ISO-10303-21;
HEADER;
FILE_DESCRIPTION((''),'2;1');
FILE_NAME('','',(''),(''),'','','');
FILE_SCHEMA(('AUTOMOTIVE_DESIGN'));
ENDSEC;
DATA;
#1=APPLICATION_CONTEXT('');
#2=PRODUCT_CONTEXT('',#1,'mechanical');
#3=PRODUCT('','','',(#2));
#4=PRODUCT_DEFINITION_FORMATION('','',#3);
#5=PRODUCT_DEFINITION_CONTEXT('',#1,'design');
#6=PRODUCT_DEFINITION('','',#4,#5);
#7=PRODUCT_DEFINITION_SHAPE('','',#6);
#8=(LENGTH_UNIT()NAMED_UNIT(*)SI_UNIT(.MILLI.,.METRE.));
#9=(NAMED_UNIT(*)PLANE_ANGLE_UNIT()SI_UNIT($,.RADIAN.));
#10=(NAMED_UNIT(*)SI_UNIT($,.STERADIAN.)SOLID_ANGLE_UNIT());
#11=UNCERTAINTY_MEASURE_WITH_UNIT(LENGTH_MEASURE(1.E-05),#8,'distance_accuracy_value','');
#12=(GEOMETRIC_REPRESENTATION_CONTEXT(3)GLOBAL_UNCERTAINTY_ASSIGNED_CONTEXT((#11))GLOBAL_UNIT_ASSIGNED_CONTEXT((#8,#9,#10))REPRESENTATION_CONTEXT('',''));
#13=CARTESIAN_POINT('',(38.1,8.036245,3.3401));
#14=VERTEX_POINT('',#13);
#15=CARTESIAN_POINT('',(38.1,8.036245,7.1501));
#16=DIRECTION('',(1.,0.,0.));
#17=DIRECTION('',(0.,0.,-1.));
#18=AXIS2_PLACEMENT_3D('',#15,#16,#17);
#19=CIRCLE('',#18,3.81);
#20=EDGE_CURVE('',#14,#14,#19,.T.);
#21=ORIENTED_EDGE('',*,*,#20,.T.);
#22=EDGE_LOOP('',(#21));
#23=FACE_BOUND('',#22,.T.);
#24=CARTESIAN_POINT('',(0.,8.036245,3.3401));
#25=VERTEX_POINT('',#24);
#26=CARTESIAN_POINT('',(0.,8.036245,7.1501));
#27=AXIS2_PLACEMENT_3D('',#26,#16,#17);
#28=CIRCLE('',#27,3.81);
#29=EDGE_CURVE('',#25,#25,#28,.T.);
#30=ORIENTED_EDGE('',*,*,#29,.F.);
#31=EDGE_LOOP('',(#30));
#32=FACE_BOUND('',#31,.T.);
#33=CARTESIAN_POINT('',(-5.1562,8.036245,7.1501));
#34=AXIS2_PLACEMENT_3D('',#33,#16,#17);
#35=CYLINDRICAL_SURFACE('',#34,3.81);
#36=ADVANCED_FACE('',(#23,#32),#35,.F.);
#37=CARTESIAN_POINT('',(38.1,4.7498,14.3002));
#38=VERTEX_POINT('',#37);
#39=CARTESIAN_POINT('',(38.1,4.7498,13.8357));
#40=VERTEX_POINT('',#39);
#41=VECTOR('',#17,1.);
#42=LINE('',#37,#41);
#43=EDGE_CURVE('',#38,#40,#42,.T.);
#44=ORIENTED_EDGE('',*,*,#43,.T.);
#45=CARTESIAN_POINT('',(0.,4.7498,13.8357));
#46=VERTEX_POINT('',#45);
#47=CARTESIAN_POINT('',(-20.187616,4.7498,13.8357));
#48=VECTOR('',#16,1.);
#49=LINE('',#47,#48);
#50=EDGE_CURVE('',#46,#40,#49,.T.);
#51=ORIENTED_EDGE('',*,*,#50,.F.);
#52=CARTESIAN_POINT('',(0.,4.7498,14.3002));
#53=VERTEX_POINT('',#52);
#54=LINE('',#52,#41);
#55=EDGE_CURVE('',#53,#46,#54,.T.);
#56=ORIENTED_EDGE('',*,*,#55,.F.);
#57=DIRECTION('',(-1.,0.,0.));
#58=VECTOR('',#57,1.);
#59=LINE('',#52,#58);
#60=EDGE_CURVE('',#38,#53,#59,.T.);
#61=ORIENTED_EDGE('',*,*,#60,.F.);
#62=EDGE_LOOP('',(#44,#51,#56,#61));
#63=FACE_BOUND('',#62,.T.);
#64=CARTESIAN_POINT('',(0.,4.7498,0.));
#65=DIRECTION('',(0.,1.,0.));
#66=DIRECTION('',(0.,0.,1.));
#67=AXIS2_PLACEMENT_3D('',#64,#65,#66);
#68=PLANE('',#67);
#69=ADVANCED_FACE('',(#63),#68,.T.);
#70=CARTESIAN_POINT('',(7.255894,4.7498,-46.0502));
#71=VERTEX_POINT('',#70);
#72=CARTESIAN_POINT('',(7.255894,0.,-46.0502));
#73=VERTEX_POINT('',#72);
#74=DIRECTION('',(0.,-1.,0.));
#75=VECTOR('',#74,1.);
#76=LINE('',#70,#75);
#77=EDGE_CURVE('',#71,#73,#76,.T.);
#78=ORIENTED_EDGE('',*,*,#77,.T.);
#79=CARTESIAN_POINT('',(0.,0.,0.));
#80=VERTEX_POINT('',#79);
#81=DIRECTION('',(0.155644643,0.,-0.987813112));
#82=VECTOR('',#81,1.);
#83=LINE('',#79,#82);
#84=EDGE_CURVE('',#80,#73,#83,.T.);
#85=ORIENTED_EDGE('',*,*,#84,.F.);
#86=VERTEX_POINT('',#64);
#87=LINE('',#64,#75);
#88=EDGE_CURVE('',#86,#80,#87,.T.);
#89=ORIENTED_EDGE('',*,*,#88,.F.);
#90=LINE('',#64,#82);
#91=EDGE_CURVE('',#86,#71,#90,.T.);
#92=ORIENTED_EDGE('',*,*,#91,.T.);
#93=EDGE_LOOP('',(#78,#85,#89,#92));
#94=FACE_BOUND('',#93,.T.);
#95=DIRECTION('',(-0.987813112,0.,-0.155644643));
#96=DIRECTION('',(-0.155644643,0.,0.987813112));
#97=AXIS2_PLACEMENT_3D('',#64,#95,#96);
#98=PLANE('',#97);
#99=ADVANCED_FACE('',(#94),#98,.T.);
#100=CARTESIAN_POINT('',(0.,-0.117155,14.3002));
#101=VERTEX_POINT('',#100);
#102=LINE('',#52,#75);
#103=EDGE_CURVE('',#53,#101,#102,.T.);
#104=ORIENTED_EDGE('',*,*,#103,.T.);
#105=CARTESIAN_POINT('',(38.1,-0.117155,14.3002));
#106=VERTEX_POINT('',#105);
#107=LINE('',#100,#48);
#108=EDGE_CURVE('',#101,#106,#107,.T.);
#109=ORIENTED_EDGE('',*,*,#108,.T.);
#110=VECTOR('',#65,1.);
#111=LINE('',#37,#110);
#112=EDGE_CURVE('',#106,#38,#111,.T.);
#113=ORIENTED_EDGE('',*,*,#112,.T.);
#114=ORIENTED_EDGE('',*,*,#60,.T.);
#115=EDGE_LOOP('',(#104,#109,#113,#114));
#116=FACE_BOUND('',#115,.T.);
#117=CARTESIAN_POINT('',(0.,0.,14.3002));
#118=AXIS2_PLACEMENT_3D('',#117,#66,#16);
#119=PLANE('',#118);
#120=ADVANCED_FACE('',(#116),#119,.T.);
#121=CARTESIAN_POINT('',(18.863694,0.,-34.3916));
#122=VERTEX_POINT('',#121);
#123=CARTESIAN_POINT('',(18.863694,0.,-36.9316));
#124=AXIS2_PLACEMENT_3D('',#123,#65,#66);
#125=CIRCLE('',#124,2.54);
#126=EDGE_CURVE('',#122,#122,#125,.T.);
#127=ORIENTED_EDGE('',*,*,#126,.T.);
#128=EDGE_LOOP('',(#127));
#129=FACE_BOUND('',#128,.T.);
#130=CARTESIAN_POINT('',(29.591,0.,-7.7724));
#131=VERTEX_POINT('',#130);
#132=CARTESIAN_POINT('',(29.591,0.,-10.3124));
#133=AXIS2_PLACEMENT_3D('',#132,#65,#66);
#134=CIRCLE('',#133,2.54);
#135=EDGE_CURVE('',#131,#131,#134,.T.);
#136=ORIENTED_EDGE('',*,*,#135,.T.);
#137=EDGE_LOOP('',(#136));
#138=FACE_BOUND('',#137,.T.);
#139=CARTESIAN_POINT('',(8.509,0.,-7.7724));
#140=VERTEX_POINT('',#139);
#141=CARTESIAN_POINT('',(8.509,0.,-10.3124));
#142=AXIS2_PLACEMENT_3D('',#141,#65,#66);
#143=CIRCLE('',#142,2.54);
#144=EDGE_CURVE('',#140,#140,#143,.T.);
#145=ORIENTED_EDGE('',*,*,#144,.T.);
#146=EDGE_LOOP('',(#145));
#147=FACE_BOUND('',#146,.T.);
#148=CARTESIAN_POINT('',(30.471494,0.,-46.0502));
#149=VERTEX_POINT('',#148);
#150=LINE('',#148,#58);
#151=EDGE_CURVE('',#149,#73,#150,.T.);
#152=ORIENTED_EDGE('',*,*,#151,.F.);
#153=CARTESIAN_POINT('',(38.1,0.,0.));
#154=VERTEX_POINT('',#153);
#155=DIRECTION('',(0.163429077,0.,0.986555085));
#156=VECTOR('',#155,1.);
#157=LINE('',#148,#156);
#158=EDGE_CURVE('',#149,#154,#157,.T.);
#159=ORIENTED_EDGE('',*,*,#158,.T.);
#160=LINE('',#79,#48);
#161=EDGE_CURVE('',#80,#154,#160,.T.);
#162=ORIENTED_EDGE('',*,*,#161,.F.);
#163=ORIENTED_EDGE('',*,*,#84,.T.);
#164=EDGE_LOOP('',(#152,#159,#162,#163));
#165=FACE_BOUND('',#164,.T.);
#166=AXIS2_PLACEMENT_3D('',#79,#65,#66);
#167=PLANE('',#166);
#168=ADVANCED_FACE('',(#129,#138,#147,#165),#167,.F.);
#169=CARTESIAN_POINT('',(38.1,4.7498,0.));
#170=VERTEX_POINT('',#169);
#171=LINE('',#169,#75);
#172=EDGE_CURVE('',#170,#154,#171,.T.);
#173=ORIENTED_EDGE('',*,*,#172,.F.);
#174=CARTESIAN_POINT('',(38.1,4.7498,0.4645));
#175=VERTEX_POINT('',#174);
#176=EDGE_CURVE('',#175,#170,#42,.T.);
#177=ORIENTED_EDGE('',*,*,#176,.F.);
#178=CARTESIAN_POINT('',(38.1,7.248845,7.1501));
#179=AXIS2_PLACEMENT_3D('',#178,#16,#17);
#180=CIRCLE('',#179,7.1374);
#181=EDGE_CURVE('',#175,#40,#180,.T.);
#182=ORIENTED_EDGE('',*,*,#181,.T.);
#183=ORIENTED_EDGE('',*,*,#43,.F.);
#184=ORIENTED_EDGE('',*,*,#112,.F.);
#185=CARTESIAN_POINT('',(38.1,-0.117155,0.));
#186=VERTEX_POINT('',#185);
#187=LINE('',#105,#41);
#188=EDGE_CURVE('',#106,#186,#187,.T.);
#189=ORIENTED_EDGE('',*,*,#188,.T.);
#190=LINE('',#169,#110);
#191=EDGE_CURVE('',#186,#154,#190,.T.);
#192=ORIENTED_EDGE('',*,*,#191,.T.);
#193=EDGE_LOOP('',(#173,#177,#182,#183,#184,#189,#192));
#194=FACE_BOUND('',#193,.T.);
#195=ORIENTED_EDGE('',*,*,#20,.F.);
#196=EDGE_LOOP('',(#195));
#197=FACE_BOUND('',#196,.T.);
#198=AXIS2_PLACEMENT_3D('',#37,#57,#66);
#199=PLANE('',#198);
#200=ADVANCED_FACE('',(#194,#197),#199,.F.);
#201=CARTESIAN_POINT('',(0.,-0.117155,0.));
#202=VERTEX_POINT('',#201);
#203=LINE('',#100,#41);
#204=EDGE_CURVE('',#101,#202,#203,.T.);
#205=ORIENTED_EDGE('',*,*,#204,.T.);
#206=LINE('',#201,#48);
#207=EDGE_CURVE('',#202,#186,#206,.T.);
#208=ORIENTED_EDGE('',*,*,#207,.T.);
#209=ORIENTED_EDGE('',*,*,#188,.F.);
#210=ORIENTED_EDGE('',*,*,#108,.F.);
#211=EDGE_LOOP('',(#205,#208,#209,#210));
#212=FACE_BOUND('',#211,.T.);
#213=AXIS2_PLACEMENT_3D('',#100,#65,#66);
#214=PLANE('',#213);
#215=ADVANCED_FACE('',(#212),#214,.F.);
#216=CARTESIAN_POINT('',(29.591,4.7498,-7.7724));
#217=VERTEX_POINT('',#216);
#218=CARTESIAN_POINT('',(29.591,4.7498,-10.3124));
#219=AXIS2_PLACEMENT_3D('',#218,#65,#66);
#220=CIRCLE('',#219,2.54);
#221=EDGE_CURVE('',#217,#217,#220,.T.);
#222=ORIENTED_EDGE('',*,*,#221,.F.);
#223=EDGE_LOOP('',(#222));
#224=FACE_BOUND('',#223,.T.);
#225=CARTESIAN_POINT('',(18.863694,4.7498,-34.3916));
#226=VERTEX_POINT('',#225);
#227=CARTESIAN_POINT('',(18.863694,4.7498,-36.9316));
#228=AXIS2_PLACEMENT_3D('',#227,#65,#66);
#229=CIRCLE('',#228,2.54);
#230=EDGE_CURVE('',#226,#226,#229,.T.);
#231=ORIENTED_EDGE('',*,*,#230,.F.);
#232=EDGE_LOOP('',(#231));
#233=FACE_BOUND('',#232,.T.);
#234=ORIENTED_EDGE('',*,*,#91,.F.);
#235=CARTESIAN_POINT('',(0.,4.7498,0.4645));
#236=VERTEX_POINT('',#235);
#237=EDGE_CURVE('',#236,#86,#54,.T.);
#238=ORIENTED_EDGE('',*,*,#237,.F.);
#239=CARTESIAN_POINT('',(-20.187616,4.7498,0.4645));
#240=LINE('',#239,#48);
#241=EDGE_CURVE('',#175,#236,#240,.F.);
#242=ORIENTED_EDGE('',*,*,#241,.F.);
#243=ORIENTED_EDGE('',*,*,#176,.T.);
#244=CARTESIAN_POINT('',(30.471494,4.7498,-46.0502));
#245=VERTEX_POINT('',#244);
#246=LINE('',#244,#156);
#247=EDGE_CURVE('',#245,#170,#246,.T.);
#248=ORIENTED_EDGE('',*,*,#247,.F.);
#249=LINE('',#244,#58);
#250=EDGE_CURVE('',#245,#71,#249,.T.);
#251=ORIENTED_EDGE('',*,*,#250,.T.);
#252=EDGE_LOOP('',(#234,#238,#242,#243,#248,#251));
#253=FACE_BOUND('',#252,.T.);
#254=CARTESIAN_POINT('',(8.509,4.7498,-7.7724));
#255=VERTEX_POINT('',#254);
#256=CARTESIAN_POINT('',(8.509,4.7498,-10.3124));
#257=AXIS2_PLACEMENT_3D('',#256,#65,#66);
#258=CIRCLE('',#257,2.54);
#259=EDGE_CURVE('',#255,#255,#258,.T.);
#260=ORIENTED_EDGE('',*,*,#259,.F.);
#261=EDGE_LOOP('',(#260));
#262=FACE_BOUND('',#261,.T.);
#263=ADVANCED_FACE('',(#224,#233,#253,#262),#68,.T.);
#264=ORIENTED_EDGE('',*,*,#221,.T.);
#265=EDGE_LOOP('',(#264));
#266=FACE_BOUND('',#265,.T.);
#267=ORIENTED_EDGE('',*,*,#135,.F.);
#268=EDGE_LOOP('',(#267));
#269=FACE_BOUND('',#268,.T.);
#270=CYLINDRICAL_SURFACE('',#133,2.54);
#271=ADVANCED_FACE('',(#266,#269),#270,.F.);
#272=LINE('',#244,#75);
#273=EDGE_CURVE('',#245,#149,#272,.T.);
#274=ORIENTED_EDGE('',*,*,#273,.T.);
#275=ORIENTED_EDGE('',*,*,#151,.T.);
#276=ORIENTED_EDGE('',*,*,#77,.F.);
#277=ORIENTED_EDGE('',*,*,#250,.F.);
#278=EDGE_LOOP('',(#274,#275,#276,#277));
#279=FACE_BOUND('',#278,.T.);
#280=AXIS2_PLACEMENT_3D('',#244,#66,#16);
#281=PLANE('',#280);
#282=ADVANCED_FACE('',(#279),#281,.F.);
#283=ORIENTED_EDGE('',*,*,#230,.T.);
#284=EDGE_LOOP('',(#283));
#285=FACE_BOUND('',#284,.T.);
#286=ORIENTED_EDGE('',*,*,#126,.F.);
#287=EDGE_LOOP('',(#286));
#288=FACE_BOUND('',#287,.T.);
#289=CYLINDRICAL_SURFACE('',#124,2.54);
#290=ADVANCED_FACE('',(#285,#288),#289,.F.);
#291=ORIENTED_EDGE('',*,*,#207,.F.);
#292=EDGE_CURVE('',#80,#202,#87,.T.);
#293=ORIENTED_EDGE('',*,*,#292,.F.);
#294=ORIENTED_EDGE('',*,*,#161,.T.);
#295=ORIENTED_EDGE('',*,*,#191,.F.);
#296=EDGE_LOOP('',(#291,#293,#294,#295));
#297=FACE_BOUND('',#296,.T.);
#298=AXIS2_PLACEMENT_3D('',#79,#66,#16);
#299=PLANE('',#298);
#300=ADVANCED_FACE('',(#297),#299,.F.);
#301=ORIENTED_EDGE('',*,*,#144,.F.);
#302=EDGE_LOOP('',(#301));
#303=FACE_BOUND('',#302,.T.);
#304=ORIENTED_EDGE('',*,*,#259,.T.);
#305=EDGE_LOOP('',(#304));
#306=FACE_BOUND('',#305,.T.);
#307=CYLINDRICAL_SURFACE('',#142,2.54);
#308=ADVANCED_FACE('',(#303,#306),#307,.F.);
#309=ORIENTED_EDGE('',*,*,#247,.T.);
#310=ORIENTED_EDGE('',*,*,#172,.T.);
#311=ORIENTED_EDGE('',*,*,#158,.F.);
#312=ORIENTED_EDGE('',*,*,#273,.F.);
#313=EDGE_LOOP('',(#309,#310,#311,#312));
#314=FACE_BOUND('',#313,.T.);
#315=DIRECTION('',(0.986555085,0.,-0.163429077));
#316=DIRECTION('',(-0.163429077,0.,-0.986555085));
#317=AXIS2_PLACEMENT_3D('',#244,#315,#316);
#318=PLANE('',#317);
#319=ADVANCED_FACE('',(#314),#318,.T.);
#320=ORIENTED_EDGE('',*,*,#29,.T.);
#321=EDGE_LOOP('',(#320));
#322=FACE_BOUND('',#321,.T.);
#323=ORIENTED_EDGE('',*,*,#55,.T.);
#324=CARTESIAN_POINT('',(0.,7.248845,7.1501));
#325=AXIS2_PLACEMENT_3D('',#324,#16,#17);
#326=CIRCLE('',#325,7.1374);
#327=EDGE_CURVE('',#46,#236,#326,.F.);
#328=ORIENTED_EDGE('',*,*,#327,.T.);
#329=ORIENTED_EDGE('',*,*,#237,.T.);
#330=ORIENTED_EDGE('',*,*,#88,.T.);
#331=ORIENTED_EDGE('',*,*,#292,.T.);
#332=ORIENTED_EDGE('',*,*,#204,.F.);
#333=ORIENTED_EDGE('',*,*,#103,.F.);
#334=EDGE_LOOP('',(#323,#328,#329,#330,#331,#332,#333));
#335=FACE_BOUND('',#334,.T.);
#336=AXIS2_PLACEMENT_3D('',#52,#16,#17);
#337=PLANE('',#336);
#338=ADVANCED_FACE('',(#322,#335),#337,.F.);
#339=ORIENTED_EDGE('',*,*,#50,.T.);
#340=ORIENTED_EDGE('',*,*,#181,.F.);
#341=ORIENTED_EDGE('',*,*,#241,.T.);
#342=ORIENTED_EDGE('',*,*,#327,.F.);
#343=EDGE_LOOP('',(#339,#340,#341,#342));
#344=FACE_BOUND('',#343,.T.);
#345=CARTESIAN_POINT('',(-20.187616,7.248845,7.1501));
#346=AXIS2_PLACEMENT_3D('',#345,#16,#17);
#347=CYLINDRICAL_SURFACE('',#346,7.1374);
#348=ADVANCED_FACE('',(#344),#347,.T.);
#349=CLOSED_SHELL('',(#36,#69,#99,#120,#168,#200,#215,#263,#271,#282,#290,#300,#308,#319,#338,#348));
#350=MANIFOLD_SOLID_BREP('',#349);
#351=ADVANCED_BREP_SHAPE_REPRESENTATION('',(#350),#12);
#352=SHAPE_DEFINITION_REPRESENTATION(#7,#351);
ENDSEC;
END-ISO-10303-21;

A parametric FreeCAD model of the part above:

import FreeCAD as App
import Part
import Sketcher
Q = App.Units.Quantity

doc = App.newDocument("Part")
body = doc.addObject("PartDesign::Body", "Body")

# Sketch on XZ plane
sketch1 = body.newObject("Sketcher::SketchObject", "Sketch")
sketch1.AttachmentSupport = (doc.getObject("XZ_Plane"), [""])
sketch1.MapMode = "FlatFace"
sketch1.addGeometry(Part.LineSegment(App.Vector(0, 0, 0), App.Vector(38.1, 0, 0)), False)
sketch1.addGeometry(Part.LineSegment(App.Vector(38.1, 0, 0), App.Vector(30.471494, -46.0502, 0)), False)
sketch1.addGeometry(Part.LineSegment(App.Vector(30.471494, -46.0502, 0), App.Vector(7.255894, -46.0502, 0)), False)
sketch1.addGeometry(Part.LineSegment(App.Vector(7.255894, -46.0502, 0), App.Vector(0, 0, 0)), False)
sketch1.addConstraint(Sketcher.Constraint("Coincident", 0, 2, 1, 1))
sketch1.addConstraint(Sketcher.Constraint("Coincident", 1, 2, 2, 1))
sketch1.addConstraint(Sketcher.Constraint("Coincident", 2, 2, 3, 1))
sketch1.addConstraint(Sketcher.Constraint("Coincident", 3, 2, 0, 1))
sketch1.addConstraint(Sketcher.Constraint("Horizontal", 0))
sketch1.addConstraint(Sketcher.Constraint("Horizontal", 2))
sketch1.addConstraint(Sketcher.Constraint("Coincident", 3, 2, -1, 1))
sketch1.addConstraint(Sketcher.Constraint("DistanceX", 0, 1, 0, 2, Q("1.5 in")))
sketch1.addConstraint(Sketcher.Constraint("DistanceX", 2, 2, 2, 1, Q("0.914 in")))
sketch1.addConstraint(Sketcher.Constraint("DistanceY", 1, 2, -1, 1, Q("1.813 in")))
sketch1.addConstraint(Sketcher.Constraint("Distance", 1, 46.677779))
pad1 = body.newObject("PartDesign::Pad", "Pad")
pad1.Profile = sketch1
pad1.Length = Q("0.187 in")
pad1.Reversed = True

# Sketch on XZ plane
sketch2 = body.newObject("Sketcher::SketchObject", "Sketch001")
sketch2.AttachmentSupport = (doc.getObject("XZ_Plane"), [""])
sketch2.MapMode = "FlatFace"
sketch2.AttachmentOffset = App.Placement(App.Vector(0, 0, -0.187 * 25.4), App.Rotation())
sketch2.addGeometry(Part.Circle(App.Vector(18.863694, -36.9316, 0), App.Vector(0, 0, 1), 2.54), False)
sketch2.addGeometry(Part.Circle(App.Vector(8.509, -10.3124, 0), App.Vector(0, 0, 1), 2.54), False)
sketch2.addGeometry(Part.Circle(App.Vector(29.591, -10.3124, 0), App.Vector(0, 0, 1), 2.54), False)
sketch2.addConstraint(Sketcher.Constraint("Equal", 0, 1))
sketch2.addConstraint(Sketcher.Constraint("Equal", 1, 2))
sketch2.addConstraint(Sketcher.Constraint("Horizontal", 1, 3, 2, 3))
sketch2.addConstraint(Sketcher.Constraint("Diameter", 0, Q("0.2 in")))
sketch2.addConstraint(Sketcher.Constraint("DistanceX", 1, 3, 2, 3, Q("0.83 in")))
sketch2.addConstraint(Sketcher.Constraint("DistanceY", 0, 3, -1, 1, Q("1.454 in")))
sketch2.addConstraint(Sketcher.Constraint("DistanceX", -1, 1, 1, 3, Q("0.335 in")))
sketch2.addConstraint(Sketcher.Constraint("DistanceY", 1, 3, -1, 1, Q("0.406 in")))
sketch2.addConstraint(Sketcher.Constraint("DistanceX", -1, 1, 0, 3, 18.863694))
pocket1 = body.newObject("PartDesign::Pocket", "Pocket")
pocket1.Profile = sketch2
pocket1.Length = Q("0.187 in")
pocket1.Reversed = True

# Sketch on XY plane
sketch3 = body.newObject("Sketcher::SketchObject", "Sketch002")
sketch3.AttachmentSupport = (doc.getObject("XY_Plane"), [""])
sketch3.MapMode = "FlatFace"
sketch3.addGeometry(Part.LineSegment(App.Vector(0, 4.7498, 0), App.Vector(0, -0.117155, 0)), False)
sketch3.addGeometry(Part.LineSegment(App.Vector(0, -0.117155, 0), App.Vector(38.1, -0.117155, 0)), False)
sketch3.addGeometry(Part.LineSegment(App.Vector(38.1, -0.117155, 0), App.Vector(38.1, 4.7498, 0)), False)
sketch3.addGeometry(Part.LineSegment(App.Vector(38.1, 4.7498, 0), App.Vector(0, 4.7498, 0)), False)
sketch3.addConstraint(Sketcher.Constraint("Coincident", 0, 2, 1, 1))
sketch3.addConstraint(Sketcher.Constraint("Coincident", 1, 2, 2, 1))
sketch3.addConstraint(Sketcher.Constraint("Coincident", 2, 2, 3, 1))
sketch3.addConstraint(Sketcher.Constraint("Coincident", 3, 2, 0, 1))
sketch3.addConstraint(Sketcher.Constraint("Vertical", 0))
sketch3.addConstraint(Sketcher.Constraint("Horizontal", 1))
sketch3.addConstraint(Sketcher.Constraint("Vertical", 2))
sketch3.addConstraint(Sketcher.Constraint("Horizontal", 3))
sketch3.addConstraint(Sketcher.Constraint("PointOnObject", 0, 2, -2))
sketch3.addConstraint(Sketcher.Constraint("DistanceX", 1, 1, 1, 2, Q("1.5 in")))
sketch3.addConstraint(Sketcher.Constraint("DistanceY", -1, 1, 2, 2, Q("0.187 in")))
sketch3.addConstraint(Sketcher.Constraint("DistanceY", 0, 2, 0, 1, 4.866955))
pad2 = body.newObject("PartDesign::Pad", "Pad001")
pad2.Profile = sketch3
pad2.Length = Q("0.563 in")

# Sketch on YZ plane
sketch4 = body.newObject("Sketcher::SketchObject", "Sketch003")
sketch4.AttachmentSupport = (doc.getObject("YZ_Plane"), [""])
sketch4.MapMode = "FlatFace"
sketch4.AttachmentOffset = App.Placement(App.Vector(0, 0, 1.5 * 25.4), App.Rotation())
sketch4.addGeometry(Part.Circle(App.Vector(7.248845, 7.1501, 0), App.Vector(0, 0, 1), 7.1374), False)
sketch4.addConstraint(Sketcher.Constraint("Diameter", 0, Q("0.562 in")))
sketch4.addConstraint(Sketcher.Constraint("DistanceY", -1, 1, 0, 3, Q("0.2815 in")))
sketch4.addConstraint(Sketcher.Constraint("DistanceX", -1, 1, 0, 3, 7.248845))
pad3 = body.newObject("PartDesign::Pad", "Pad002")
pad3.Profile = sketch4
pad3.Length = Q("1.5 in")
pad3.Reversed = True

# Sketch on YZ plane
sketch5 = body.newObject("Sketcher::SketchObject", "Sketch004")
sketch5.AttachmentSupport = (doc.getObject("YZ_Plane"), [""])
sketch5.MapMode = "FlatFace"
sketch5.AttachmentOffset = App.Placement(App.Vector(0, 0, 1.5 * 25.4), App.Rotation())
sketch5.addGeometry(Part.Circle(App.Vector(8.036245, 7.1501, 0), App.Vector(0, 0, 1), 3.81), False)
sketch5.addConstraint(Sketcher.Constraint("Diameter", 0, Q("0.3 in")))
sketch5.addConstraint(Sketcher.Constraint("DistanceY", -1, 1, 0, 3, Q("0.2815 in")))
sketch5.addConstraint(Sketcher.Constraint("DistanceX", -1, 1, 0, 3, 8.036245))
pocket2 = body.newObject("PartDesign::Pocket", "Pocket001")
pocket2.Profile = sketch5
pocket2.Length = Q("1.703 in")

doc.recompute()
